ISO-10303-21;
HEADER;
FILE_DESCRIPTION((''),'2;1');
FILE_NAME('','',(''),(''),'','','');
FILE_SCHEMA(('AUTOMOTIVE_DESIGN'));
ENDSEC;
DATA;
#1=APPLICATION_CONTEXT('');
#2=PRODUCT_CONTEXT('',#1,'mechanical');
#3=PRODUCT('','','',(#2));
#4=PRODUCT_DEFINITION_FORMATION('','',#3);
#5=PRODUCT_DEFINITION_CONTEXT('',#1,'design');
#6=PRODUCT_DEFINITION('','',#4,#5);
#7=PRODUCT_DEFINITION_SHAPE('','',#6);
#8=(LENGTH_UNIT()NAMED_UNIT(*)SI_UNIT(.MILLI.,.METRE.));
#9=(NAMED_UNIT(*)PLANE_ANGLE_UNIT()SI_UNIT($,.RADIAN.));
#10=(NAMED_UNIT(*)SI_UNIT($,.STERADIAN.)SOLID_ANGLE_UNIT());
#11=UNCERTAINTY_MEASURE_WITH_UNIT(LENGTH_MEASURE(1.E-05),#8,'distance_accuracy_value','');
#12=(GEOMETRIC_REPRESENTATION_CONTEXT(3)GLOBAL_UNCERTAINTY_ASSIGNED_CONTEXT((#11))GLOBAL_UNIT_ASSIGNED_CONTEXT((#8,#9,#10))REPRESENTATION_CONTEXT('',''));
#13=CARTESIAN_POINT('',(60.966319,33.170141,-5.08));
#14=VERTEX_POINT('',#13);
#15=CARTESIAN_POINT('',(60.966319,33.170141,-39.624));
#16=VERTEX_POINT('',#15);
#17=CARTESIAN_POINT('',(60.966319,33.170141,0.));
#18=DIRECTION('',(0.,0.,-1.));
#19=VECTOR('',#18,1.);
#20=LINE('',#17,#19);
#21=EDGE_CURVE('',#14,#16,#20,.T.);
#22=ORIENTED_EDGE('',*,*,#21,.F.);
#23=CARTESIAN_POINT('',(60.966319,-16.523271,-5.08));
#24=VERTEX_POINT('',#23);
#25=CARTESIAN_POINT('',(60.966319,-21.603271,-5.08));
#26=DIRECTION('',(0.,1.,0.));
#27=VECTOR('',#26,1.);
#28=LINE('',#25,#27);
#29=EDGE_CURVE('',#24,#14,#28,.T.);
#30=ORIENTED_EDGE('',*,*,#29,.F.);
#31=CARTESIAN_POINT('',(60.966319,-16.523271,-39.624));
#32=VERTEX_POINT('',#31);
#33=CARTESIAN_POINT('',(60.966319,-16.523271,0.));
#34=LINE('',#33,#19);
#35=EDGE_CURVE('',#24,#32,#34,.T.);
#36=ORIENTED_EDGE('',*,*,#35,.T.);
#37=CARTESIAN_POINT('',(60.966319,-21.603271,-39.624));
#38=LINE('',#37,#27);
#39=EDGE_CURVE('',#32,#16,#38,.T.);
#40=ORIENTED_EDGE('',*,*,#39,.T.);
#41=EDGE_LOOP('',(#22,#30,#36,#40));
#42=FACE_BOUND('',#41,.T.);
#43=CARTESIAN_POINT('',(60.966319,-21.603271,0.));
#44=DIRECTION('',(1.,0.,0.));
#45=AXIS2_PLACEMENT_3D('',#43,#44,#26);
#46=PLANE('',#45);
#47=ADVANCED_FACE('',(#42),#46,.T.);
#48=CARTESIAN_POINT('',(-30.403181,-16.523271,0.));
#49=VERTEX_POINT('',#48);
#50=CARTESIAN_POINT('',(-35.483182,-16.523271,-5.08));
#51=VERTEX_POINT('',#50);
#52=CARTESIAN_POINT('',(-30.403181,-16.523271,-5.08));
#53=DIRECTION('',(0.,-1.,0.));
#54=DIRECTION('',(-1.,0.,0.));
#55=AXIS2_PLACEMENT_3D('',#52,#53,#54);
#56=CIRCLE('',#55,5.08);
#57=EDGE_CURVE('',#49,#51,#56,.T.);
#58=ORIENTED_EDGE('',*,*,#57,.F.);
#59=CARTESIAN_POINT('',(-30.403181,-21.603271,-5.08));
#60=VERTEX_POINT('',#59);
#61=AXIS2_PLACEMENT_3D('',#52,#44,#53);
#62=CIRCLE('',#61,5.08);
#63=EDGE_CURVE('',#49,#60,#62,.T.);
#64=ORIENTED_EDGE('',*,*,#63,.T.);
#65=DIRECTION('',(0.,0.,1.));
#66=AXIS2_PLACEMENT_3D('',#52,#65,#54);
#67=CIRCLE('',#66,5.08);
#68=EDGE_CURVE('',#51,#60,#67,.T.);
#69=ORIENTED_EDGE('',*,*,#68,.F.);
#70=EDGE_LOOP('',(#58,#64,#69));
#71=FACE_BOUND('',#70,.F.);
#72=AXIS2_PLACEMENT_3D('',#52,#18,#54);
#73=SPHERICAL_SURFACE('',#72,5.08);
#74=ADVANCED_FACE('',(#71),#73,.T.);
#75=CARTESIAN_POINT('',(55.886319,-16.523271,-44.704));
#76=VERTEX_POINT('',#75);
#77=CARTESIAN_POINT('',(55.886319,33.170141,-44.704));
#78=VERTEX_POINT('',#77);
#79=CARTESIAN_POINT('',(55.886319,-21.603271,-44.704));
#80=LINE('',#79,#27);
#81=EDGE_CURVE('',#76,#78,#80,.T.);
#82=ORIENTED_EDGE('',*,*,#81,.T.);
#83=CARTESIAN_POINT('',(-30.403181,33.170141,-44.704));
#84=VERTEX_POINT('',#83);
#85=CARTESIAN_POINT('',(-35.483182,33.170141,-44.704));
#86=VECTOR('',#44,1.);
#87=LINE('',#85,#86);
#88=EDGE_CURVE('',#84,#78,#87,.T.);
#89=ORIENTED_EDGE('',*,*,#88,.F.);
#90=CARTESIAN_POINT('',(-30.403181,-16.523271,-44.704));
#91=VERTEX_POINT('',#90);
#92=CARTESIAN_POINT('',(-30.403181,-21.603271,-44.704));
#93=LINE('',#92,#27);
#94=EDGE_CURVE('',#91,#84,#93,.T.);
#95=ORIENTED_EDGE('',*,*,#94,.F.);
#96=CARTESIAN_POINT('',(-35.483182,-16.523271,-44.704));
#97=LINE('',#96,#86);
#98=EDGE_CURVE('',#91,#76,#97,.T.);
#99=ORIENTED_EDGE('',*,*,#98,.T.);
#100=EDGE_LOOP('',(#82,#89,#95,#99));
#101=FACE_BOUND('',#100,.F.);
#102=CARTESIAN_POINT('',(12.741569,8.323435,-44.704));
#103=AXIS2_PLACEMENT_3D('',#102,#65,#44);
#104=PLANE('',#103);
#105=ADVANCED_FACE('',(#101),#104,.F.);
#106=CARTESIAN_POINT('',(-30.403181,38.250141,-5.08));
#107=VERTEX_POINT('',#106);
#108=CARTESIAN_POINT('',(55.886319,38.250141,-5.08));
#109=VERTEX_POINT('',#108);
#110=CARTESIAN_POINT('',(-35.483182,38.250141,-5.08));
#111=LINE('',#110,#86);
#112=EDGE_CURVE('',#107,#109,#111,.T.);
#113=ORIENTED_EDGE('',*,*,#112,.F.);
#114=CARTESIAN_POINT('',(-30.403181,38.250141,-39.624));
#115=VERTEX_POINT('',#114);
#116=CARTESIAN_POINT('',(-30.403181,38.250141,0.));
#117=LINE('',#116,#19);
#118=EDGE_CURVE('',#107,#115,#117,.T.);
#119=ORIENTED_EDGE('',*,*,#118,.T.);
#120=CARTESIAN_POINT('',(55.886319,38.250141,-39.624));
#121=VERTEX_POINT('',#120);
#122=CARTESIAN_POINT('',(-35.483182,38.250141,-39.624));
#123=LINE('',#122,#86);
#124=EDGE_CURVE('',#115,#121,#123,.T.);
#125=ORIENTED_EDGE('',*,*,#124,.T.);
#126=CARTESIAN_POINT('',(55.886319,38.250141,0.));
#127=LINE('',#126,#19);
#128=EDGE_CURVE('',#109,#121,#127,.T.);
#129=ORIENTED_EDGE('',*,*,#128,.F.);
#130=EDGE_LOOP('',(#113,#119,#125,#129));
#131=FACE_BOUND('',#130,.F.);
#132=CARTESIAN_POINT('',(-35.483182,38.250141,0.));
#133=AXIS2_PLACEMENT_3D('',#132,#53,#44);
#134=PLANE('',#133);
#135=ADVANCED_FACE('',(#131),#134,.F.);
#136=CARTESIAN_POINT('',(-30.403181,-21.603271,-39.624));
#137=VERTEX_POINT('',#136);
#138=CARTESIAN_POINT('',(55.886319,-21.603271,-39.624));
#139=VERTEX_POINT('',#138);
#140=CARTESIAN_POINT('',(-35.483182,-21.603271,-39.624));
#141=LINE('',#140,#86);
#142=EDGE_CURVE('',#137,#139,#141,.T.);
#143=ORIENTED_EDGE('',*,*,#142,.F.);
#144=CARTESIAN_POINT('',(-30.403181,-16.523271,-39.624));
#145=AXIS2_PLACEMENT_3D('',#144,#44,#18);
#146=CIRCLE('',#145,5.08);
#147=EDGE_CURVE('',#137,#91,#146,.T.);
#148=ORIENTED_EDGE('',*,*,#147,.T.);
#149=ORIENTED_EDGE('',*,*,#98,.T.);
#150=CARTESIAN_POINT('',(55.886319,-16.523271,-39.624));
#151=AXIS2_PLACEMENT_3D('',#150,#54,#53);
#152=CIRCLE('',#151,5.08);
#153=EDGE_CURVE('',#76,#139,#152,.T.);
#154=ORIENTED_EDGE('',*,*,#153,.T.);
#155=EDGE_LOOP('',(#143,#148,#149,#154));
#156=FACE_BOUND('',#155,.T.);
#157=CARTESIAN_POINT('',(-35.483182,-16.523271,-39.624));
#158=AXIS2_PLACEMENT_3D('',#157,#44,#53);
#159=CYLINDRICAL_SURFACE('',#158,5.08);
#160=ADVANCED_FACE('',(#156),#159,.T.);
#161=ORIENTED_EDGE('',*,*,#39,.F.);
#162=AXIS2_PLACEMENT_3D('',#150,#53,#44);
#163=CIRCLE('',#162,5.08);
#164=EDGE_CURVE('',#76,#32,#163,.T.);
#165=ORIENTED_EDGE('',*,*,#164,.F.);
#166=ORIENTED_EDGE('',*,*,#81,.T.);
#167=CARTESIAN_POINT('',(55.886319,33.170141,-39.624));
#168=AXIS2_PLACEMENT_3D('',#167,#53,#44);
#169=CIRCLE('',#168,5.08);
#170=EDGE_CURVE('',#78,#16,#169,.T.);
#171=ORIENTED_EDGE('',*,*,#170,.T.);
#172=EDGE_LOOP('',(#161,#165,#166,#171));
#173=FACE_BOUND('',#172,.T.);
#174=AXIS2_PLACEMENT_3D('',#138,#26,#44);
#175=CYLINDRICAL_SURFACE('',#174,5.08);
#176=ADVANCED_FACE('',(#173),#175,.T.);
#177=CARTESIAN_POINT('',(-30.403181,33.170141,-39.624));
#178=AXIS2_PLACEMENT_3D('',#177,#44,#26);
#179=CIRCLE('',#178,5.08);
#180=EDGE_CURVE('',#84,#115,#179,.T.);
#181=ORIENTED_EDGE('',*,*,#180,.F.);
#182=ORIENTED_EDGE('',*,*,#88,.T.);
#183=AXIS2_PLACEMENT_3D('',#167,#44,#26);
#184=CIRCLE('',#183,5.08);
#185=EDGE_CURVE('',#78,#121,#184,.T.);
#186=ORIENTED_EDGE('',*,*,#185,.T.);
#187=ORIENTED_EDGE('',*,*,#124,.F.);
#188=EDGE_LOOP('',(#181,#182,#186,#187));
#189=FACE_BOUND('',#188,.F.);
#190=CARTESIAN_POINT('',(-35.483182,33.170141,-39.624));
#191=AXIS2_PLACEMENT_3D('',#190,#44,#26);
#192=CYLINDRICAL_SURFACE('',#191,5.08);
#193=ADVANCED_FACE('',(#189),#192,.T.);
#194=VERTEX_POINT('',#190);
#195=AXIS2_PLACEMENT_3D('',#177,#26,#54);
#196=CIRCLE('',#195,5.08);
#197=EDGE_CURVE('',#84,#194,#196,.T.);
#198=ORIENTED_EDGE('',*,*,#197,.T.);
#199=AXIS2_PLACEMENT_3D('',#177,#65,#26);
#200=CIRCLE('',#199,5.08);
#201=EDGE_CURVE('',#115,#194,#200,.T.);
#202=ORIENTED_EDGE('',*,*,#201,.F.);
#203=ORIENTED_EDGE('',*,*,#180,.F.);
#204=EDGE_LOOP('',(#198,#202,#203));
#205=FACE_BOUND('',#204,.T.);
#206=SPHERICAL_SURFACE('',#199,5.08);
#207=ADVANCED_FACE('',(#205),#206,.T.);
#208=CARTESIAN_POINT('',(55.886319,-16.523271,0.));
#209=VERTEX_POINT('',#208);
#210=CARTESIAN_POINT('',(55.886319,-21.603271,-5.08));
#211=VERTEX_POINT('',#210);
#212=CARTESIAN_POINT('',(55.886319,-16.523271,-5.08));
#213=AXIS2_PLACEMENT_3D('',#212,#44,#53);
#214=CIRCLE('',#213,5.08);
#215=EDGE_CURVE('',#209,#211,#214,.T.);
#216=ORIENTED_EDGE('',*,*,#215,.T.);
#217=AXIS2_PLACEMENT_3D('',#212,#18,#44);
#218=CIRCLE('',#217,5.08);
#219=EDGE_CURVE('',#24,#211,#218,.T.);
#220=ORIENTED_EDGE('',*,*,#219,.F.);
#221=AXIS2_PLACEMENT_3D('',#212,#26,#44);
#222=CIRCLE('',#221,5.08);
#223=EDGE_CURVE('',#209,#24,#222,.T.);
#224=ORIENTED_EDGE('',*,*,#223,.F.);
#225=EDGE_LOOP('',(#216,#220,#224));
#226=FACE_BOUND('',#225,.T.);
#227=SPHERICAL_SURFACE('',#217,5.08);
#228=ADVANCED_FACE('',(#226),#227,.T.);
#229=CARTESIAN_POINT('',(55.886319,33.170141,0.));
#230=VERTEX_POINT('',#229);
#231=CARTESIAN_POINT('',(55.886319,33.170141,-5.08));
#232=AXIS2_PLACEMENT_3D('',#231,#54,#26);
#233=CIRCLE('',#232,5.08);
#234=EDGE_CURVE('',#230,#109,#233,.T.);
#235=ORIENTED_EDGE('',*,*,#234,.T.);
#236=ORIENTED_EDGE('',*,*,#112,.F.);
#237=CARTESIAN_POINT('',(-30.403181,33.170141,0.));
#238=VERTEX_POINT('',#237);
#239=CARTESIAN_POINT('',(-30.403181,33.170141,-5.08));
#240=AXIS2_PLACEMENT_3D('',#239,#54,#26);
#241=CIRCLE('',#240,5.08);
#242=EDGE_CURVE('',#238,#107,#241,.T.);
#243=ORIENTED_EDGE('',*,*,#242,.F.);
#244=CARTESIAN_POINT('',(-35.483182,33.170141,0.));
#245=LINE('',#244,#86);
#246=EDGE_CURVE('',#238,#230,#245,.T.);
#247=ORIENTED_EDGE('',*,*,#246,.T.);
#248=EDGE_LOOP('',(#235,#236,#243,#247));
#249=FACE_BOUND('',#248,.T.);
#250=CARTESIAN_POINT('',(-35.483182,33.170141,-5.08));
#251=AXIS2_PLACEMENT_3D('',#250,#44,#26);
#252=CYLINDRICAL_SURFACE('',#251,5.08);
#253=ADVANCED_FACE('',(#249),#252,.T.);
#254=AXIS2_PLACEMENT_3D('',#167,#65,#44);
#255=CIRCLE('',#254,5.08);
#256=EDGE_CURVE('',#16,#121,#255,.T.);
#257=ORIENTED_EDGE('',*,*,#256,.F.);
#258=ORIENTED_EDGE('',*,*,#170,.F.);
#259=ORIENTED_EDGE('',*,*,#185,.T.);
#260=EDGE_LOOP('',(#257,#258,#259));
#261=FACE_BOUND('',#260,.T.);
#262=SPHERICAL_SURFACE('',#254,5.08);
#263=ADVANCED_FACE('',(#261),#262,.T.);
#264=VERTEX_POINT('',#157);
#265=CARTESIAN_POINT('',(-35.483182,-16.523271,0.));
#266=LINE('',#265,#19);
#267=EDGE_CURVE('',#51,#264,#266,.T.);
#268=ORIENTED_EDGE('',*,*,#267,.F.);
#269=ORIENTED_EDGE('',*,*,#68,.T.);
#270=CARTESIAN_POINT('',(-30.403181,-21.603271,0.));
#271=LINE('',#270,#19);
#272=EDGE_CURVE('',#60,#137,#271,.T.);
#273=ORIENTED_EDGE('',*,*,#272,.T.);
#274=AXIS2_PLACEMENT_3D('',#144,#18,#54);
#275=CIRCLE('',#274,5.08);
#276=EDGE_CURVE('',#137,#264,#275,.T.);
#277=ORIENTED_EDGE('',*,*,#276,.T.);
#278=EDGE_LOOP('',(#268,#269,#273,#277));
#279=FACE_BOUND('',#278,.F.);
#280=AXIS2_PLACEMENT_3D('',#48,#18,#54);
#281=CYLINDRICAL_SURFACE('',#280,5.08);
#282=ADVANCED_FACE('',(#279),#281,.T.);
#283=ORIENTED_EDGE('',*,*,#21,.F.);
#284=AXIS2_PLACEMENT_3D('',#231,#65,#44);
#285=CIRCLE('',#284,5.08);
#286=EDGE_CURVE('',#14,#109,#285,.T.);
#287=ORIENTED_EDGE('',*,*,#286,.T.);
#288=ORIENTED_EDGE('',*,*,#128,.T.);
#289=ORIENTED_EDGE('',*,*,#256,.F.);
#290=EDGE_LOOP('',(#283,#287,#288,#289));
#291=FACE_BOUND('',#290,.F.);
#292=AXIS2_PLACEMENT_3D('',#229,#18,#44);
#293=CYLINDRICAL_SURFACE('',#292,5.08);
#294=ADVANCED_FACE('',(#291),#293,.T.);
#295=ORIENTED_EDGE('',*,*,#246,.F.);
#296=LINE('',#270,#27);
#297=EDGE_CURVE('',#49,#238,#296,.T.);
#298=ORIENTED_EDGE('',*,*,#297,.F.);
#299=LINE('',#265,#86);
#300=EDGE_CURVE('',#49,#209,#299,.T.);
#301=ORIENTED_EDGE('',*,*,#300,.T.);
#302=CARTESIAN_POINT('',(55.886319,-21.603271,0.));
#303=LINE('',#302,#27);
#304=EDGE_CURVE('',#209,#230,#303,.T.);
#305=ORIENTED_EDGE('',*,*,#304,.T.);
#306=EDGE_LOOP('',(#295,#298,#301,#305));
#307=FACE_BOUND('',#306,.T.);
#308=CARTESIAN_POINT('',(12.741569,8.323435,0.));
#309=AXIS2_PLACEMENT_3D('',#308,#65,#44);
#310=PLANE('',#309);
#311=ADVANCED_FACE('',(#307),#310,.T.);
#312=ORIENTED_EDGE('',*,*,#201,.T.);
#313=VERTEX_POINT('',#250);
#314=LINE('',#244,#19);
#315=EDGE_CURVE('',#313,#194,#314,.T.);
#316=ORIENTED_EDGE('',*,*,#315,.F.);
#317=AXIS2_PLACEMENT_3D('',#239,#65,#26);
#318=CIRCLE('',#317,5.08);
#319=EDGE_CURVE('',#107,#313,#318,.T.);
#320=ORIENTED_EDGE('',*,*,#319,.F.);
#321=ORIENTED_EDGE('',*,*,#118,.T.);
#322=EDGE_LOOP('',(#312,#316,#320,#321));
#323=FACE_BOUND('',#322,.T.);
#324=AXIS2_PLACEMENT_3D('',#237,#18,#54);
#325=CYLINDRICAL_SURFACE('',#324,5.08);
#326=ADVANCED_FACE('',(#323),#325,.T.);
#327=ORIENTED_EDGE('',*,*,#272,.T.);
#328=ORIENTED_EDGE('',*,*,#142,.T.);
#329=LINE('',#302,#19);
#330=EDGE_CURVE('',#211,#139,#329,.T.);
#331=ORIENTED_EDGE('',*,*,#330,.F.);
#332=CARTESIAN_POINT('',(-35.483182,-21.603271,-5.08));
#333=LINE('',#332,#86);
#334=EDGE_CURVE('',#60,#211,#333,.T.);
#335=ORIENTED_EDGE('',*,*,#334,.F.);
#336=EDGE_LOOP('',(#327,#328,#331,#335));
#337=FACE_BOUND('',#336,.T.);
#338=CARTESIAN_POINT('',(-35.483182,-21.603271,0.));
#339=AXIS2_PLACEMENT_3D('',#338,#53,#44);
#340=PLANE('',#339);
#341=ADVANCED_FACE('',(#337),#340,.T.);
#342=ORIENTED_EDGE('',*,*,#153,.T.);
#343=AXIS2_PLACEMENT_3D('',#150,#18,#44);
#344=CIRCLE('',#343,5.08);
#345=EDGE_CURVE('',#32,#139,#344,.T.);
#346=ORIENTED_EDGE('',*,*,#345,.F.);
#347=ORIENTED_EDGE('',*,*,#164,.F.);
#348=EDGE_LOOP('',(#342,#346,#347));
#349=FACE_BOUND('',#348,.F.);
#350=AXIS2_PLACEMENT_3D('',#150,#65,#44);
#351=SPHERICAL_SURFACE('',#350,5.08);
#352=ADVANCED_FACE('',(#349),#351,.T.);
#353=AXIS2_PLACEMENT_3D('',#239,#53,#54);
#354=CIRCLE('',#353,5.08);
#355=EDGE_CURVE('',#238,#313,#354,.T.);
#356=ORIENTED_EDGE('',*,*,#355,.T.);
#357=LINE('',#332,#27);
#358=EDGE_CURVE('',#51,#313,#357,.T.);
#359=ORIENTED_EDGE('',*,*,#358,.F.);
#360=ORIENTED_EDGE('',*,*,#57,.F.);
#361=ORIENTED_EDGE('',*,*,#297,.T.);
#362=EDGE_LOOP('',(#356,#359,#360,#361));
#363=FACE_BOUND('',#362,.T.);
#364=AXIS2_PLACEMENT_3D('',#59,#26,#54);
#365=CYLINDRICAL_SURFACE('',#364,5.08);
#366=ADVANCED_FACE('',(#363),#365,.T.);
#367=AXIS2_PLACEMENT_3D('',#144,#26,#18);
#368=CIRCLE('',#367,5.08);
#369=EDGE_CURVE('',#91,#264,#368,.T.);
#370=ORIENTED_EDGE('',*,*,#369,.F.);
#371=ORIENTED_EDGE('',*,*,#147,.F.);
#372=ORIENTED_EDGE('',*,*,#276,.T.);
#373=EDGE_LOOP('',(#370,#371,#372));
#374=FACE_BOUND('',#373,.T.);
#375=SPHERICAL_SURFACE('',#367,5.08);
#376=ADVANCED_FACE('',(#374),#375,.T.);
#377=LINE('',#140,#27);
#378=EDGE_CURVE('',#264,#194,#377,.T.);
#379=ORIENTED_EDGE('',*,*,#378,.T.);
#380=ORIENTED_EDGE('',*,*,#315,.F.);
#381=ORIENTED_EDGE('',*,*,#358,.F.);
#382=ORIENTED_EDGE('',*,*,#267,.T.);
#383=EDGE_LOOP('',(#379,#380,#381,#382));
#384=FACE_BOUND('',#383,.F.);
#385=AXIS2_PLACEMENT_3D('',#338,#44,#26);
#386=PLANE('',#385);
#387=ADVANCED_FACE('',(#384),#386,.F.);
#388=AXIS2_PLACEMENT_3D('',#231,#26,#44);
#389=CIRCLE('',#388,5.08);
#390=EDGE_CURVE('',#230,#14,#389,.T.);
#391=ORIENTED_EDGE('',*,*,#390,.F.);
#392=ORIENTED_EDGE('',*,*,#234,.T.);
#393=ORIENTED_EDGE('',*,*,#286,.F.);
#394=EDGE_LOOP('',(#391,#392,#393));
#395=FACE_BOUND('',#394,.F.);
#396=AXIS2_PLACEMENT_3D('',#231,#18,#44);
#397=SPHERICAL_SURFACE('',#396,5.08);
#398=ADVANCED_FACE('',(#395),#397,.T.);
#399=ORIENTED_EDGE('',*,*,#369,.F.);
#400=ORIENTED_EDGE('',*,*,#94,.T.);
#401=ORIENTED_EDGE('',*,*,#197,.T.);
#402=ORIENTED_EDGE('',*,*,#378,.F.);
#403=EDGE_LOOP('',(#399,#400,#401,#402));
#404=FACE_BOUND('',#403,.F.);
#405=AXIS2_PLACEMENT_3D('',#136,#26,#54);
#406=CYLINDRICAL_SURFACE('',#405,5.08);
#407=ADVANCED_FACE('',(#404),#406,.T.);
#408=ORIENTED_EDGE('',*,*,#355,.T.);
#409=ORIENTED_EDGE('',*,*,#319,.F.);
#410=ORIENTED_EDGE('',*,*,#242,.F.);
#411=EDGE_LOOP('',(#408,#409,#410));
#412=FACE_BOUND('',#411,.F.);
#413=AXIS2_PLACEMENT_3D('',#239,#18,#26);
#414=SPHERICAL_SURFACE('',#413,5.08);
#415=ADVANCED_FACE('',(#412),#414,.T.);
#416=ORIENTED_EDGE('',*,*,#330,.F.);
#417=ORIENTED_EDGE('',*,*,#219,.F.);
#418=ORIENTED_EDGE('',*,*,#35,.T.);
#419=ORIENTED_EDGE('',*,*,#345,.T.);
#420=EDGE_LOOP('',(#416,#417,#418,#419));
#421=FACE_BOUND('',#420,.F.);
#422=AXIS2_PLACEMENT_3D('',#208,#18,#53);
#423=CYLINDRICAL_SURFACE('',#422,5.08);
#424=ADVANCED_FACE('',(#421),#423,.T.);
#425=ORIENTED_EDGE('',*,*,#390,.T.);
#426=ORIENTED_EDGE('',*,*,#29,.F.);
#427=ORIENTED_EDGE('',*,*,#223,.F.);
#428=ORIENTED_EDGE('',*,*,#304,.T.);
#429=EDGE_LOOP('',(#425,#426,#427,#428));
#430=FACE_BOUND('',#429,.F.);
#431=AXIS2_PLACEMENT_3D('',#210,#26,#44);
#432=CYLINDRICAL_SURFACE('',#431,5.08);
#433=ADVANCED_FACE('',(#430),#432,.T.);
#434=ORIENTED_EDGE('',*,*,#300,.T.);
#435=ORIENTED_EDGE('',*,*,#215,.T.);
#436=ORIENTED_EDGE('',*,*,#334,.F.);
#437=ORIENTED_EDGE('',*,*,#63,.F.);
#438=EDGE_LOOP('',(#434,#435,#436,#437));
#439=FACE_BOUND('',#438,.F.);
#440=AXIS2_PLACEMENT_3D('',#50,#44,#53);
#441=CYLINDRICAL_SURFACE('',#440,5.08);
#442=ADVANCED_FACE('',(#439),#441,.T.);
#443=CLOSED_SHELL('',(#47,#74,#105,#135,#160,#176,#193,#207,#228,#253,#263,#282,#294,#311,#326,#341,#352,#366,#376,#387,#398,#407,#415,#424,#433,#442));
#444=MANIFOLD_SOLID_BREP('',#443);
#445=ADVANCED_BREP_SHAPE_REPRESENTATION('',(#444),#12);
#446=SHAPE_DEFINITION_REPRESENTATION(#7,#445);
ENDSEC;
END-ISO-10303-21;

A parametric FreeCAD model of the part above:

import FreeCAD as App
import Part
import Sketcher
from FreeCAD import Vector
Q = App.Units.Quantity


def add_polygon(sketch, points):
    """Adds a closed chain of lines whose ends are joined by coincident constraints."""
    first, n = sketch.GeometryCount, len(points)
    for a, b in zip(points, points[1:] + points[:1]):
        sketch.addGeometry(Part.LineSegment(App.Vector(*a, 0), App.Vector(*b, 0)), False)
    for i in range(n):
        sketch.addConstraint(Sketcher.Constraint("Coincident", first + i, 2, first + (i + 1) % n, 1))

doc = App.newDocument("Part")
body = doc.addObject("PartDesign::Body", "Body")

# Sketch on XY plane
sketch1 = doc.addObject("Sketcher::SketchObject", "Sketch")
body.addObject(sketch1)
sketch1.AttachmentSupport = (doc.XY_Plane, [""])
sketch1.MapMode = "FlatFace"
add_polygon(sketch1, [(-35, 38), (-35, -22), (61, -22), (61, 38)])  # lines 0-3
sketch1.addConstraint([
    Sketcher.Constraint("Vertical", 0),
    Sketcher.Constraint("Horizontal", 1),
    Sketcher.Constraint("Vertical", 2),
    Sketcher.Constraint("Horizontal", 3),
    Sketcher.Constraint("DistanceX", 1, 1, 1, 2, Q("96.449501 mm")),
    Sketcher.Constraint("DistanceY", 0, 2, 0, 1, Q("59.853412 mm")),
    Sketcher.Constraint("DistanceX", 0, 2, -1, 1, Q("35.483182 mm")),
    Sketcher.Constraint("DistanceY", 0, 2, -1, 1, Q("21.603271 mm")),
])
pad1 = doc.addObject("PartDesign::Pad", "Pad")
body.addObject(pad1)
pad1.Profile = sketch1
pad1.Length = Q("1.76 in")
pad1.Reversed = True
doc.recompute()

fillet = doc.addObject("PartDesign::Fillet", "Fillet")
body.addObject(fillet)
fillet.Base = (pad1, ["Edge1"])
fillet.UseAllEdges = True
fillet.Radius = Q("0.2 in")

doc.recompute()
